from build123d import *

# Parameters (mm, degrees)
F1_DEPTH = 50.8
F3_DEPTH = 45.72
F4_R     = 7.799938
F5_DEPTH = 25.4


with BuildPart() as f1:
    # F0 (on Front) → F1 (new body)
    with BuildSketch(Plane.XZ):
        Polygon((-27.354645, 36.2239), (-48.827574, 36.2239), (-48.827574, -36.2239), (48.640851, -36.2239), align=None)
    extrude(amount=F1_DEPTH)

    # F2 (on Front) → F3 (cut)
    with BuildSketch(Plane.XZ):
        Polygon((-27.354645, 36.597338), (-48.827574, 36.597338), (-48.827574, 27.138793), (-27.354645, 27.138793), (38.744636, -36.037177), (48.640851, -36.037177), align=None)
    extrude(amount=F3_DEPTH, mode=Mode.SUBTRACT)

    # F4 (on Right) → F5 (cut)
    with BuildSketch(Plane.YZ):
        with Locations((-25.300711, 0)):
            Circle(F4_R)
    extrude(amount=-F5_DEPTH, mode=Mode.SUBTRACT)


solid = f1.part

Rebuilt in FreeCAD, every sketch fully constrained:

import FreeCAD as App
import Part
import Sketcher
Q = App.Units.Quantity

doc = App.newDocument("Part")
body = doc.addObject("PartDesign::Body", "Body")

sketch1 = body.newObject("Sketcher::SketchObject", "Sketch")
sketch1.AttachmentSupport = (doc.getObject("XZ_Plane"), [""])
sketch1.MapMode = "FlatFace"
sketch1.addGeometry([
    Part.LineSegment(App.Vector(-27, 36, 0), App.Vector(-49, 36, 0)),
    Part.LineSegment(App.Vector(-49, 36, 0), App.Vector(-49, -36, 0)),
    Part.LineSegment(App.Vector(-49, -36, 0), App.Vector(49, -36, 0)),
    Part.LineSegment(App.Vector(49, -36, 0), App.Vector(-27, 36, 0)),
], False)
sketch1.addConstraint([
    Sketcher.Constraint("Coincident", 0, 2, 1, 1),
    Sketcher.Constraint("Coincident", 1, 2, 2, 1),
    Sketcher.Constraint("Coincident", 2, 2, 3, 1),
    Sketcher.Constraint("Coincident", 3, 2, 0, 1),
    Sketcher.Constraint("Horizontal", 0),
    Sketcher.Constraint("Vertical", 1),
    Sketcher.Constraint("Horizontal", 2),
    Sketcher.Constraint("DistanceY", 1, 2, 1, 1, 72.4478),
    Sketcher.Constraint("DistanceX", 0, 2, 0, 1, 21.472929),
    Sketcher.Constraint("DistanceY", -1, 1, 0, 2, 36.2239),
    Sketcher.Constraint("DistanceX", 2, 1, 2, 2, 97.468425),
    Sketcher.Constraint("DistanceX", -1, 1, 2, 2, 48.640851),
])
pad1 = body.newObject("PartDesign::Pad", "Pad")
pad1.Profile = sketch1
pad1.Length = Q("2 in")

sketch2 = body.newObject("Sketcher::SketchObject", "Sketch001")
sketch2.AttachmentSupport = (doc.getObject("XZ_Plane"), [""])
sketch2.MapMode = "FlatFace"
sketch2.addGeometry([
    Part.LineSegment(App.Vector(-27, 37, 0), App.Vector(-49, 37, 0)),
    Part.LineSegment(App.Vector(-49, 37, 0), App.Vector(-49, 27, 0)),
    Part.LineSegment(App.Vector(-49, 27, 0), App.Vector(-27, 27, 0)),
    Part.LineSegment(App.Vector(-27, 27, 0), App.Vector(39, -36, 0)),
    Part.LineSegment(App.Vector(39, -36, 0), App.Vector(49, -36, 0)),
    Part.LineSegment(App.Vector(49, -36, 0), App.Vector(-27, 37, 0)),
], False)
sketch2.addConstraint([
    Sketcher.Constraint("Coincident", 0, 2, 1, 1),
    Sketcher.Constraint("Coincident", 1, 2, 2, 1),
    Sketcher.Constraint("Coincident", 2, 2, 3, 1),
    Sketcher.Constraint("Coincident", 3, 2, 4, 1),
    Sketcher.Constraint("Coincident", 4, 2, 5, 1),
    Sketcher.Constraint("Coincident", 5, 2, 0, 1),
    Sketcher.Constraint("Horizontal", 0),
    Sketcher.Constraint("Vertical", 1),
    Sketcher.Constraint("Horizontal", 2),
    Sketcher.Constraint("Horizontal", 4),
    Sketcher.Constraint("Parallel", 3, 5),
    Sketcher.Constraint("Vertical", 2, 2, 5, 2),
    Sketcher.Constraint("DistanceX", 0, 2, 0, 1, 21.472929),
    Sketcher.Constraint("DistanceX", 4, 1, 4, 2, 9.896215),
    Sketcher.Constraint("DistanceY", 1, 2, 1, 1, 9.458545),
    Sketcher.Constraint("DistanceX", -1, 1, 4, 2, 48.640851),
    Sketcher.Constraint("DistanceX", 2, 2, 3, 2, 66.099281),
    Sketcher.Constraint("DistanceY", -1, 1, 0, 2, 36.597338),
])
pocket1 = body.newObject("PartDesign::Pocket", "Pocket")
pocket1.Profile = sketch2
pocket1.Length = Q("1.8 in")
pocket1.Reversed = True

sketch3 = body.newObject("Sketcher::SketchObject", "Sketch002")
sketch3.AttachmentSupport = (doc.getObject("YZ_Plane"), [""])
sketch3.MapMode = "FlatFace"
sketch3.addGeometry(Part.Circle(App.Vector(-25, 0, 0), App.Vector(0, 0, 1), 8), False)
sketch3.addConstraint([
    Sketcher.Constraint("PointOnObject", 0, 3, -1),
    Sketcher.Constraint("Diameter", 0, 15.599876),
    Sketcher.Constraint("DistanceX", 0, 3, -1, 1, 25.300711),
])
pocket2 = body.newObject("PartDesign::Pocket", "Pocket001")
pocket2.Profile = sketch3
pocket2.Length = Q("1 in")

doc.recompute()
